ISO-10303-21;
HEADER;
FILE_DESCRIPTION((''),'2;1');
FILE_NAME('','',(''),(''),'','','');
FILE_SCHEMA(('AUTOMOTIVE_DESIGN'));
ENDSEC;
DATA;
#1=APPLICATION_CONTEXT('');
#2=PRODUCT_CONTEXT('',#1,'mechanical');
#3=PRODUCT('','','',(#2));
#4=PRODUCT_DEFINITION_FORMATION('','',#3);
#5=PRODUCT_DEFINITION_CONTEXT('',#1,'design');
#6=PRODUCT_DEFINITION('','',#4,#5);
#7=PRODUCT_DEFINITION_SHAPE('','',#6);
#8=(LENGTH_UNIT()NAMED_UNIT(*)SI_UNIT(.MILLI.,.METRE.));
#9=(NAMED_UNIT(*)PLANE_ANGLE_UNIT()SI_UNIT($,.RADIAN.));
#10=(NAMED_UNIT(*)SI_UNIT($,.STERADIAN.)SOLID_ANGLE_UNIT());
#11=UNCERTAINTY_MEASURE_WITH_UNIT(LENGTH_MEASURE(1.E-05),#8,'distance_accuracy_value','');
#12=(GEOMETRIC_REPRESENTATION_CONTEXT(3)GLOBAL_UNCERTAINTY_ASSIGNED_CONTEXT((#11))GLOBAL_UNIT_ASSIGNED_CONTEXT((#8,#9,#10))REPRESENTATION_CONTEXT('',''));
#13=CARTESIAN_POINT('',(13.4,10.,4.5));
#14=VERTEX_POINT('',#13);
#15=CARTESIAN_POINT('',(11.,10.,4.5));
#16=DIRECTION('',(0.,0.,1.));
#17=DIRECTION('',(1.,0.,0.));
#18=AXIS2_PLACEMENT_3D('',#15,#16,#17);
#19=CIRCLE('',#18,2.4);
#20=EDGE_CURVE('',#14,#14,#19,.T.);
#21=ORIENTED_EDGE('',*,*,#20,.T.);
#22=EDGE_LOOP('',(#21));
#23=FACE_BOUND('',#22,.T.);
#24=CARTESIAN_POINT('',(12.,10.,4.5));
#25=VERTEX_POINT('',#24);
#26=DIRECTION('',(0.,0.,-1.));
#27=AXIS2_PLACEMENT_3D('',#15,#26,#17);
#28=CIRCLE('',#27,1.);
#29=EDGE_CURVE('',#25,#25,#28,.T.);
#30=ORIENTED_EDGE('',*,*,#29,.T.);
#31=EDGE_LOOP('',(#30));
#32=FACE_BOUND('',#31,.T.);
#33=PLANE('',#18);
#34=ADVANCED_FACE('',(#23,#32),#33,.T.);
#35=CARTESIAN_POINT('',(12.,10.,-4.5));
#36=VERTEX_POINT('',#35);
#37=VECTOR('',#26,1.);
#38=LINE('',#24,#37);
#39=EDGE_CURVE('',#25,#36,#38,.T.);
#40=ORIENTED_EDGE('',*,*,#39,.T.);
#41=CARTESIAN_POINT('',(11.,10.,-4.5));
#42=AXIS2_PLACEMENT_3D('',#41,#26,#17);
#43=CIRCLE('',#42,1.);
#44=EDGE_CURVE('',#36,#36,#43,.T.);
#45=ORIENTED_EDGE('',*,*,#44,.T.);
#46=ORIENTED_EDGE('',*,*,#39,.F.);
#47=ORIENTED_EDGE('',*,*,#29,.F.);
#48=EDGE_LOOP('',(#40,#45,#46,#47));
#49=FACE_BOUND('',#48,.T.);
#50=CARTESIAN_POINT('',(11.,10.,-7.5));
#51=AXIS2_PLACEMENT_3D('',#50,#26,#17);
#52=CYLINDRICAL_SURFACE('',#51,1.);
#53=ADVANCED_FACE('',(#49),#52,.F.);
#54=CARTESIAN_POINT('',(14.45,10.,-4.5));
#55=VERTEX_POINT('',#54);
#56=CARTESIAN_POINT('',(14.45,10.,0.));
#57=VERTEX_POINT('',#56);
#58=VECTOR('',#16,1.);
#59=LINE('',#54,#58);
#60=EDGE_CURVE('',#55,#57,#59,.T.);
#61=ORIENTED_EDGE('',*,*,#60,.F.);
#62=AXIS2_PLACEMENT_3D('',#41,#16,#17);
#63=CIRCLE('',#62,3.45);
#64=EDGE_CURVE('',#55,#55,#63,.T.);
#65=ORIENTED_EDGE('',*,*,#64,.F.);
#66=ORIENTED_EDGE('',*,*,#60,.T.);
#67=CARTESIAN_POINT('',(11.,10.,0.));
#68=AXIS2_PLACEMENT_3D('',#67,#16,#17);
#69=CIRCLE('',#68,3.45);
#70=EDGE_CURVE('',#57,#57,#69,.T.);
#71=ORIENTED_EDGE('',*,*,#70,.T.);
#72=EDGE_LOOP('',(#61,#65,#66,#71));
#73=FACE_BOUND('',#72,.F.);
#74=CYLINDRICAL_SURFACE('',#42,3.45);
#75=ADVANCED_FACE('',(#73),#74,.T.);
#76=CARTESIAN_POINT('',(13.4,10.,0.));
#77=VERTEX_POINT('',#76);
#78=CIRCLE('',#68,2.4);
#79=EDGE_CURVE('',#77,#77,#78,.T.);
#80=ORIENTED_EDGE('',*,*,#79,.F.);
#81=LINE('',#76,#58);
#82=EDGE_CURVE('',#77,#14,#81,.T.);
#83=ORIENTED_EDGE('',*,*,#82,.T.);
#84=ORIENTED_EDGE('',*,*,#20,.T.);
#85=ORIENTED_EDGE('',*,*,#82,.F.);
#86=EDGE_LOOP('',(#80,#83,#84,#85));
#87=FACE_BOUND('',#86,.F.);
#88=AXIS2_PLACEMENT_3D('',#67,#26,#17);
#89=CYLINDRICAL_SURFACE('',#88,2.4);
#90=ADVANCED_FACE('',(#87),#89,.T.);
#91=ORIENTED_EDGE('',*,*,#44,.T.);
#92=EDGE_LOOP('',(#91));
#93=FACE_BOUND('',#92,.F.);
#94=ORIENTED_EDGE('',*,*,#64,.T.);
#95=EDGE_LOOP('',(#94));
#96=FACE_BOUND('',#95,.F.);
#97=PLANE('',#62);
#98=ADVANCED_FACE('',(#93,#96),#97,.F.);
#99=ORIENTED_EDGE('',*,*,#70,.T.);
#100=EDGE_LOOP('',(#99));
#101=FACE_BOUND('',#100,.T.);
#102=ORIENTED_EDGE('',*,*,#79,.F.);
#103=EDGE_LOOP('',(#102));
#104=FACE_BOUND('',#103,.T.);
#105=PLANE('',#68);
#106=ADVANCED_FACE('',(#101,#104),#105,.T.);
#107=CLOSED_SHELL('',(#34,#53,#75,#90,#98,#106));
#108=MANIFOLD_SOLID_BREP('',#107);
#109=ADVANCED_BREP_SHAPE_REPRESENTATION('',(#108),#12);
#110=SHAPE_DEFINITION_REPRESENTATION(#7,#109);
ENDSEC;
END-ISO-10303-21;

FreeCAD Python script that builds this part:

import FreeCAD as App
import Part
import Sketcher

doc = App.newDocument("Part")
body = doc.addObject("PartDesign::Body", "Body")

# Sketch on XY plane
sketch1 = body.newObject("Sketcher::SketchObject", "Sketch")
sketch1.AttachmentSupport = (doc.getObject("XY_Plane"), [""])
sketch1.MapMode = "FlatFace"
sketch1.AttachmentOffset = App.Placement(App.Vector(0, 0, -8), App.Rotation())
sketch1.addGeometry(Part.Circle(App.Vector(11, 10, 0), App.Vector(0, 0, 1), 1), False)
sketch1.addConstraint([
    Sketcher.Constraint("Diameter", 0, 2.0),
    Sketcher.Constraint("DistanceX", -1, 1, 0, 3, 11.0),
    Sketcher.Constraint("DistanceY", -1, 1, 0, 3, 10.0),
])
pad1 = body.newObject("PartDesign::Pad", "Pad")
pad1.Profile = sketch1
pad1.Length = 20
body2 = doc.addObject("PartDesign::Body", "Body001")

# Sketch on XY plane
sketch2 = body2.newObject("Sketcher::SketchObject", "Sketch001")
sketch2.AttachmentSupport = (doc.getObject("XY_Plane001"), [""])
sketch2.MapMode = "FlatFace"
sketch2.AttachmentOffset = App.Placement(App.Vector(0, 0, -0.5), App.Rotation())
sketch2.addGeometry(Part.Circle(App.Vector(11, 10, 0), App.Vector(0, 0, 1), 2.4), False)
sketch2.addConstraint([
    Sketcher.Constraint("Diameter", 0, 4.8),
    Sketcher.Constraint("DistanceX", -1, 1, 0, 3, 11.0),
    Sketcher.Constraint("DistanceY", -1, 1, 0, 3, 10.0),
])
pad2 = body2.newObject("PartDesign::Pad", "Pad001")
pad2.Profile = sketch2
pad2.Length = 4.5
doc.recompute()

body3 = doc.addObject("PartDesign::Body", "Body002")
body3.BaseFeature = body
boolean = body2.newObject("PartDesign::Boolean", "Boolean")
boolean.Type = "Cut"
boolean.addObjects([body3])
doc.recompute()
body4 = doc.addObject("PartDesign::Body", "Body003")

# Sketch on XY plane
sketch3 = body4.newObject("Sketcher::SketchObject", "Sketch002")
sketch3.AttachmentSupport = (doc.getObject("XY_Plane003"), [""])
sketch3.MapMode = "FlatFace"
sketch3.AttachmentOffset = App.Placement(App.Vector(0, 0, -5), App.Rotation())
sketch3.addGeometry(Part.Circle(App.Vector(11, 10, 0), App.Vector(0, 0, 1), 3.45), False)
sketch3.addConstraint([
    Sketcher.Constraint("Diameter", 0, 6.9),
    Sketcher.Constraint("DistanceX", -1, 1, 0, 3, 11.0),
    Sketcher.Constraint("DistanceY", -1, 1, 0, 3, 10.0),
])
pad3 = body4.newObject("PartDesign::Pad", "Pad002")
pad3.Profile = sketch3
pad3.Length = 4.5
doc.recompute()

boolean2 = body4.newObject("PartDesign::Boolean", "Boolean001")
boolean2.Type = "Cut"
boolean2.addObjects([body])
doc.recompute()

boolean3 = body4.newObject("PartDesign::Boolean", "Boolean002")
boolean3.Type = "Fuse"
boolean3.addObjects([body2])
body5 = doc.addObject("PartDesign::Body", "Body004")
doc.recompute()

body4.Placement = App.Placement(App.Vector(0, 0, 0.5), App.Rotation(App.Vector(0, 0, 1), 0))
boolean4 = body5.newObject("PartDesign::Boolean", "Boolean003")
boolean4.Type = "Fuse"
boolean4.addObjects([body4])

doc.recompute()
